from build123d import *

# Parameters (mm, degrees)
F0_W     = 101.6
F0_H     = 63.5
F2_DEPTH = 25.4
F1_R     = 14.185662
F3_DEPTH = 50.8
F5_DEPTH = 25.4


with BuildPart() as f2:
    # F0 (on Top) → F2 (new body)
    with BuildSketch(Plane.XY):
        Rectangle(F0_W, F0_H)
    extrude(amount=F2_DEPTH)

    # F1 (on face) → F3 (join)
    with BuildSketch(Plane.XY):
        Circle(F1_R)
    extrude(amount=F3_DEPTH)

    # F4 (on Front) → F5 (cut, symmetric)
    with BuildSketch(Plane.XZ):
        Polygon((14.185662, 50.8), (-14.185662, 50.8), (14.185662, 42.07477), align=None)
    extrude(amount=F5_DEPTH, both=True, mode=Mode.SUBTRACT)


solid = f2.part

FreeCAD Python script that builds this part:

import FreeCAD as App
import Part
import Sketcher

V = App.Vector
Q = App.Units.Quantity


def add_polygon(sketch, points):
    """Adds a closed chain of lines whose ends are joined by coincident constraints."""
    first, n = sketch.GeometryCount, len(points)
    for a, b in zip(points, points[1:] + points[:1]):
        sketch.addGeometry(Part.LineSegment(App.Vector(*a, 0), App.Vector(*b, 0)), False)
    for i in range(n):
        sketch.addConstraint(Sketcher.Constraint("Coincident", first + i, 2, first + (i + 1) % n, 1))

doc = App.newDocument("Part")
body = doc.addObject("PartDesign::Body", "Body")

# Sketch on XY plane
sketch1 = body.newObject("Sketcher::SketchObject", "Sketch")
sketch1.AttachmentSupport = (doc.getObject("XY_Plane"), [""])
sketch1.MapMode = "FlatFace"
add_polygon(sketch1, [(-51, 32), (-51, -32), (51, -32), (51, 32)])  # lines 0-3
sketch1.addConstraint([
    Sketcher.Constraint("Vertical", 0),
    Sketcher.Constraint("Horizontal", 1),
    Sketcher.Constraint("Vertical", 2),
    Sketcher.Constraint("Horizontal", 3),
    Sketcher.Constraint("Symmetric", 0, 2, 2, 2, -1, 1),
    Sketcher.Constraint("DistanceX", 1, 1, 1, 2, Q("4 in")),
    Sketcher.Constraint("DistanceY", 0, 2, 0, 1, Q("2.5 in")),
])
pad1 = body.newObject("PartDesign::Pad", "Pad")
pad1.Profile = sketch1
pad1.Length = Q("1 in")

# Sketch on XY plane
sketch2 = body.newObject("Sketcher::SketchObject", "Sketch001")
sketch2.AttachmentSupport = (doc.getObject("XY_Plane"), [""])
sketch2.MapMode = "FlatFace"
sketch2.addGeometry(Part.Circle(V(0, 0, 0), V(0, 0, 1), 14), False)
sketch2.addConstraint([
    Sketcher.Constraint("Coincident", 0, 3, -1, 1),
    Sketcher.Constraint("Diameter", 0, Q("28.371324 mm")),
])
pad2 = body.newObject("PartDesign::Pad", "Pad001")
pad2.Profile = sketch2
pad2.Length = Q("2 in")

# Sketch on XZ plane
sketch3 = body.newObject("Sketcher::SketchObject", "Sketch002")
sketch3.AttachmentSupport = (doc.getObject("XZ_Plane"), [""])
sketch3.MapMode = "FlatFace"
add_polygon(sketch3, [(14, 51), (-14, 51), (14, 42)])  # lines 0-2
sketch3.addConstraint([
    Sketcher.Constraint("Horizontal", 0),
    Sketcher.Constraint("Vertical", 2),
    Sketcher.Constraint("DistanceY", -1, 1, 0, 2, Q("2 in")),
    Sketcher.Constraint("DistanceY", 2, 1, 2, 2, Q("8.72523 mm")),
    Sketcher.Constraint("DistanceX", 0, 2, 0, 1, Q("28.371324 mm")),
    Sketcher.Constraint("DistanceX", 0, 2, -1, 1, Q("14.185662 mm")),
])
pocket1 = body.newObject("PartDesign::Pocket", "Pocket")
pocket1.Profile = sketch3
pocket1.Length = Q("2 in")
pocket1.Midplane = True

doc.recompute()
